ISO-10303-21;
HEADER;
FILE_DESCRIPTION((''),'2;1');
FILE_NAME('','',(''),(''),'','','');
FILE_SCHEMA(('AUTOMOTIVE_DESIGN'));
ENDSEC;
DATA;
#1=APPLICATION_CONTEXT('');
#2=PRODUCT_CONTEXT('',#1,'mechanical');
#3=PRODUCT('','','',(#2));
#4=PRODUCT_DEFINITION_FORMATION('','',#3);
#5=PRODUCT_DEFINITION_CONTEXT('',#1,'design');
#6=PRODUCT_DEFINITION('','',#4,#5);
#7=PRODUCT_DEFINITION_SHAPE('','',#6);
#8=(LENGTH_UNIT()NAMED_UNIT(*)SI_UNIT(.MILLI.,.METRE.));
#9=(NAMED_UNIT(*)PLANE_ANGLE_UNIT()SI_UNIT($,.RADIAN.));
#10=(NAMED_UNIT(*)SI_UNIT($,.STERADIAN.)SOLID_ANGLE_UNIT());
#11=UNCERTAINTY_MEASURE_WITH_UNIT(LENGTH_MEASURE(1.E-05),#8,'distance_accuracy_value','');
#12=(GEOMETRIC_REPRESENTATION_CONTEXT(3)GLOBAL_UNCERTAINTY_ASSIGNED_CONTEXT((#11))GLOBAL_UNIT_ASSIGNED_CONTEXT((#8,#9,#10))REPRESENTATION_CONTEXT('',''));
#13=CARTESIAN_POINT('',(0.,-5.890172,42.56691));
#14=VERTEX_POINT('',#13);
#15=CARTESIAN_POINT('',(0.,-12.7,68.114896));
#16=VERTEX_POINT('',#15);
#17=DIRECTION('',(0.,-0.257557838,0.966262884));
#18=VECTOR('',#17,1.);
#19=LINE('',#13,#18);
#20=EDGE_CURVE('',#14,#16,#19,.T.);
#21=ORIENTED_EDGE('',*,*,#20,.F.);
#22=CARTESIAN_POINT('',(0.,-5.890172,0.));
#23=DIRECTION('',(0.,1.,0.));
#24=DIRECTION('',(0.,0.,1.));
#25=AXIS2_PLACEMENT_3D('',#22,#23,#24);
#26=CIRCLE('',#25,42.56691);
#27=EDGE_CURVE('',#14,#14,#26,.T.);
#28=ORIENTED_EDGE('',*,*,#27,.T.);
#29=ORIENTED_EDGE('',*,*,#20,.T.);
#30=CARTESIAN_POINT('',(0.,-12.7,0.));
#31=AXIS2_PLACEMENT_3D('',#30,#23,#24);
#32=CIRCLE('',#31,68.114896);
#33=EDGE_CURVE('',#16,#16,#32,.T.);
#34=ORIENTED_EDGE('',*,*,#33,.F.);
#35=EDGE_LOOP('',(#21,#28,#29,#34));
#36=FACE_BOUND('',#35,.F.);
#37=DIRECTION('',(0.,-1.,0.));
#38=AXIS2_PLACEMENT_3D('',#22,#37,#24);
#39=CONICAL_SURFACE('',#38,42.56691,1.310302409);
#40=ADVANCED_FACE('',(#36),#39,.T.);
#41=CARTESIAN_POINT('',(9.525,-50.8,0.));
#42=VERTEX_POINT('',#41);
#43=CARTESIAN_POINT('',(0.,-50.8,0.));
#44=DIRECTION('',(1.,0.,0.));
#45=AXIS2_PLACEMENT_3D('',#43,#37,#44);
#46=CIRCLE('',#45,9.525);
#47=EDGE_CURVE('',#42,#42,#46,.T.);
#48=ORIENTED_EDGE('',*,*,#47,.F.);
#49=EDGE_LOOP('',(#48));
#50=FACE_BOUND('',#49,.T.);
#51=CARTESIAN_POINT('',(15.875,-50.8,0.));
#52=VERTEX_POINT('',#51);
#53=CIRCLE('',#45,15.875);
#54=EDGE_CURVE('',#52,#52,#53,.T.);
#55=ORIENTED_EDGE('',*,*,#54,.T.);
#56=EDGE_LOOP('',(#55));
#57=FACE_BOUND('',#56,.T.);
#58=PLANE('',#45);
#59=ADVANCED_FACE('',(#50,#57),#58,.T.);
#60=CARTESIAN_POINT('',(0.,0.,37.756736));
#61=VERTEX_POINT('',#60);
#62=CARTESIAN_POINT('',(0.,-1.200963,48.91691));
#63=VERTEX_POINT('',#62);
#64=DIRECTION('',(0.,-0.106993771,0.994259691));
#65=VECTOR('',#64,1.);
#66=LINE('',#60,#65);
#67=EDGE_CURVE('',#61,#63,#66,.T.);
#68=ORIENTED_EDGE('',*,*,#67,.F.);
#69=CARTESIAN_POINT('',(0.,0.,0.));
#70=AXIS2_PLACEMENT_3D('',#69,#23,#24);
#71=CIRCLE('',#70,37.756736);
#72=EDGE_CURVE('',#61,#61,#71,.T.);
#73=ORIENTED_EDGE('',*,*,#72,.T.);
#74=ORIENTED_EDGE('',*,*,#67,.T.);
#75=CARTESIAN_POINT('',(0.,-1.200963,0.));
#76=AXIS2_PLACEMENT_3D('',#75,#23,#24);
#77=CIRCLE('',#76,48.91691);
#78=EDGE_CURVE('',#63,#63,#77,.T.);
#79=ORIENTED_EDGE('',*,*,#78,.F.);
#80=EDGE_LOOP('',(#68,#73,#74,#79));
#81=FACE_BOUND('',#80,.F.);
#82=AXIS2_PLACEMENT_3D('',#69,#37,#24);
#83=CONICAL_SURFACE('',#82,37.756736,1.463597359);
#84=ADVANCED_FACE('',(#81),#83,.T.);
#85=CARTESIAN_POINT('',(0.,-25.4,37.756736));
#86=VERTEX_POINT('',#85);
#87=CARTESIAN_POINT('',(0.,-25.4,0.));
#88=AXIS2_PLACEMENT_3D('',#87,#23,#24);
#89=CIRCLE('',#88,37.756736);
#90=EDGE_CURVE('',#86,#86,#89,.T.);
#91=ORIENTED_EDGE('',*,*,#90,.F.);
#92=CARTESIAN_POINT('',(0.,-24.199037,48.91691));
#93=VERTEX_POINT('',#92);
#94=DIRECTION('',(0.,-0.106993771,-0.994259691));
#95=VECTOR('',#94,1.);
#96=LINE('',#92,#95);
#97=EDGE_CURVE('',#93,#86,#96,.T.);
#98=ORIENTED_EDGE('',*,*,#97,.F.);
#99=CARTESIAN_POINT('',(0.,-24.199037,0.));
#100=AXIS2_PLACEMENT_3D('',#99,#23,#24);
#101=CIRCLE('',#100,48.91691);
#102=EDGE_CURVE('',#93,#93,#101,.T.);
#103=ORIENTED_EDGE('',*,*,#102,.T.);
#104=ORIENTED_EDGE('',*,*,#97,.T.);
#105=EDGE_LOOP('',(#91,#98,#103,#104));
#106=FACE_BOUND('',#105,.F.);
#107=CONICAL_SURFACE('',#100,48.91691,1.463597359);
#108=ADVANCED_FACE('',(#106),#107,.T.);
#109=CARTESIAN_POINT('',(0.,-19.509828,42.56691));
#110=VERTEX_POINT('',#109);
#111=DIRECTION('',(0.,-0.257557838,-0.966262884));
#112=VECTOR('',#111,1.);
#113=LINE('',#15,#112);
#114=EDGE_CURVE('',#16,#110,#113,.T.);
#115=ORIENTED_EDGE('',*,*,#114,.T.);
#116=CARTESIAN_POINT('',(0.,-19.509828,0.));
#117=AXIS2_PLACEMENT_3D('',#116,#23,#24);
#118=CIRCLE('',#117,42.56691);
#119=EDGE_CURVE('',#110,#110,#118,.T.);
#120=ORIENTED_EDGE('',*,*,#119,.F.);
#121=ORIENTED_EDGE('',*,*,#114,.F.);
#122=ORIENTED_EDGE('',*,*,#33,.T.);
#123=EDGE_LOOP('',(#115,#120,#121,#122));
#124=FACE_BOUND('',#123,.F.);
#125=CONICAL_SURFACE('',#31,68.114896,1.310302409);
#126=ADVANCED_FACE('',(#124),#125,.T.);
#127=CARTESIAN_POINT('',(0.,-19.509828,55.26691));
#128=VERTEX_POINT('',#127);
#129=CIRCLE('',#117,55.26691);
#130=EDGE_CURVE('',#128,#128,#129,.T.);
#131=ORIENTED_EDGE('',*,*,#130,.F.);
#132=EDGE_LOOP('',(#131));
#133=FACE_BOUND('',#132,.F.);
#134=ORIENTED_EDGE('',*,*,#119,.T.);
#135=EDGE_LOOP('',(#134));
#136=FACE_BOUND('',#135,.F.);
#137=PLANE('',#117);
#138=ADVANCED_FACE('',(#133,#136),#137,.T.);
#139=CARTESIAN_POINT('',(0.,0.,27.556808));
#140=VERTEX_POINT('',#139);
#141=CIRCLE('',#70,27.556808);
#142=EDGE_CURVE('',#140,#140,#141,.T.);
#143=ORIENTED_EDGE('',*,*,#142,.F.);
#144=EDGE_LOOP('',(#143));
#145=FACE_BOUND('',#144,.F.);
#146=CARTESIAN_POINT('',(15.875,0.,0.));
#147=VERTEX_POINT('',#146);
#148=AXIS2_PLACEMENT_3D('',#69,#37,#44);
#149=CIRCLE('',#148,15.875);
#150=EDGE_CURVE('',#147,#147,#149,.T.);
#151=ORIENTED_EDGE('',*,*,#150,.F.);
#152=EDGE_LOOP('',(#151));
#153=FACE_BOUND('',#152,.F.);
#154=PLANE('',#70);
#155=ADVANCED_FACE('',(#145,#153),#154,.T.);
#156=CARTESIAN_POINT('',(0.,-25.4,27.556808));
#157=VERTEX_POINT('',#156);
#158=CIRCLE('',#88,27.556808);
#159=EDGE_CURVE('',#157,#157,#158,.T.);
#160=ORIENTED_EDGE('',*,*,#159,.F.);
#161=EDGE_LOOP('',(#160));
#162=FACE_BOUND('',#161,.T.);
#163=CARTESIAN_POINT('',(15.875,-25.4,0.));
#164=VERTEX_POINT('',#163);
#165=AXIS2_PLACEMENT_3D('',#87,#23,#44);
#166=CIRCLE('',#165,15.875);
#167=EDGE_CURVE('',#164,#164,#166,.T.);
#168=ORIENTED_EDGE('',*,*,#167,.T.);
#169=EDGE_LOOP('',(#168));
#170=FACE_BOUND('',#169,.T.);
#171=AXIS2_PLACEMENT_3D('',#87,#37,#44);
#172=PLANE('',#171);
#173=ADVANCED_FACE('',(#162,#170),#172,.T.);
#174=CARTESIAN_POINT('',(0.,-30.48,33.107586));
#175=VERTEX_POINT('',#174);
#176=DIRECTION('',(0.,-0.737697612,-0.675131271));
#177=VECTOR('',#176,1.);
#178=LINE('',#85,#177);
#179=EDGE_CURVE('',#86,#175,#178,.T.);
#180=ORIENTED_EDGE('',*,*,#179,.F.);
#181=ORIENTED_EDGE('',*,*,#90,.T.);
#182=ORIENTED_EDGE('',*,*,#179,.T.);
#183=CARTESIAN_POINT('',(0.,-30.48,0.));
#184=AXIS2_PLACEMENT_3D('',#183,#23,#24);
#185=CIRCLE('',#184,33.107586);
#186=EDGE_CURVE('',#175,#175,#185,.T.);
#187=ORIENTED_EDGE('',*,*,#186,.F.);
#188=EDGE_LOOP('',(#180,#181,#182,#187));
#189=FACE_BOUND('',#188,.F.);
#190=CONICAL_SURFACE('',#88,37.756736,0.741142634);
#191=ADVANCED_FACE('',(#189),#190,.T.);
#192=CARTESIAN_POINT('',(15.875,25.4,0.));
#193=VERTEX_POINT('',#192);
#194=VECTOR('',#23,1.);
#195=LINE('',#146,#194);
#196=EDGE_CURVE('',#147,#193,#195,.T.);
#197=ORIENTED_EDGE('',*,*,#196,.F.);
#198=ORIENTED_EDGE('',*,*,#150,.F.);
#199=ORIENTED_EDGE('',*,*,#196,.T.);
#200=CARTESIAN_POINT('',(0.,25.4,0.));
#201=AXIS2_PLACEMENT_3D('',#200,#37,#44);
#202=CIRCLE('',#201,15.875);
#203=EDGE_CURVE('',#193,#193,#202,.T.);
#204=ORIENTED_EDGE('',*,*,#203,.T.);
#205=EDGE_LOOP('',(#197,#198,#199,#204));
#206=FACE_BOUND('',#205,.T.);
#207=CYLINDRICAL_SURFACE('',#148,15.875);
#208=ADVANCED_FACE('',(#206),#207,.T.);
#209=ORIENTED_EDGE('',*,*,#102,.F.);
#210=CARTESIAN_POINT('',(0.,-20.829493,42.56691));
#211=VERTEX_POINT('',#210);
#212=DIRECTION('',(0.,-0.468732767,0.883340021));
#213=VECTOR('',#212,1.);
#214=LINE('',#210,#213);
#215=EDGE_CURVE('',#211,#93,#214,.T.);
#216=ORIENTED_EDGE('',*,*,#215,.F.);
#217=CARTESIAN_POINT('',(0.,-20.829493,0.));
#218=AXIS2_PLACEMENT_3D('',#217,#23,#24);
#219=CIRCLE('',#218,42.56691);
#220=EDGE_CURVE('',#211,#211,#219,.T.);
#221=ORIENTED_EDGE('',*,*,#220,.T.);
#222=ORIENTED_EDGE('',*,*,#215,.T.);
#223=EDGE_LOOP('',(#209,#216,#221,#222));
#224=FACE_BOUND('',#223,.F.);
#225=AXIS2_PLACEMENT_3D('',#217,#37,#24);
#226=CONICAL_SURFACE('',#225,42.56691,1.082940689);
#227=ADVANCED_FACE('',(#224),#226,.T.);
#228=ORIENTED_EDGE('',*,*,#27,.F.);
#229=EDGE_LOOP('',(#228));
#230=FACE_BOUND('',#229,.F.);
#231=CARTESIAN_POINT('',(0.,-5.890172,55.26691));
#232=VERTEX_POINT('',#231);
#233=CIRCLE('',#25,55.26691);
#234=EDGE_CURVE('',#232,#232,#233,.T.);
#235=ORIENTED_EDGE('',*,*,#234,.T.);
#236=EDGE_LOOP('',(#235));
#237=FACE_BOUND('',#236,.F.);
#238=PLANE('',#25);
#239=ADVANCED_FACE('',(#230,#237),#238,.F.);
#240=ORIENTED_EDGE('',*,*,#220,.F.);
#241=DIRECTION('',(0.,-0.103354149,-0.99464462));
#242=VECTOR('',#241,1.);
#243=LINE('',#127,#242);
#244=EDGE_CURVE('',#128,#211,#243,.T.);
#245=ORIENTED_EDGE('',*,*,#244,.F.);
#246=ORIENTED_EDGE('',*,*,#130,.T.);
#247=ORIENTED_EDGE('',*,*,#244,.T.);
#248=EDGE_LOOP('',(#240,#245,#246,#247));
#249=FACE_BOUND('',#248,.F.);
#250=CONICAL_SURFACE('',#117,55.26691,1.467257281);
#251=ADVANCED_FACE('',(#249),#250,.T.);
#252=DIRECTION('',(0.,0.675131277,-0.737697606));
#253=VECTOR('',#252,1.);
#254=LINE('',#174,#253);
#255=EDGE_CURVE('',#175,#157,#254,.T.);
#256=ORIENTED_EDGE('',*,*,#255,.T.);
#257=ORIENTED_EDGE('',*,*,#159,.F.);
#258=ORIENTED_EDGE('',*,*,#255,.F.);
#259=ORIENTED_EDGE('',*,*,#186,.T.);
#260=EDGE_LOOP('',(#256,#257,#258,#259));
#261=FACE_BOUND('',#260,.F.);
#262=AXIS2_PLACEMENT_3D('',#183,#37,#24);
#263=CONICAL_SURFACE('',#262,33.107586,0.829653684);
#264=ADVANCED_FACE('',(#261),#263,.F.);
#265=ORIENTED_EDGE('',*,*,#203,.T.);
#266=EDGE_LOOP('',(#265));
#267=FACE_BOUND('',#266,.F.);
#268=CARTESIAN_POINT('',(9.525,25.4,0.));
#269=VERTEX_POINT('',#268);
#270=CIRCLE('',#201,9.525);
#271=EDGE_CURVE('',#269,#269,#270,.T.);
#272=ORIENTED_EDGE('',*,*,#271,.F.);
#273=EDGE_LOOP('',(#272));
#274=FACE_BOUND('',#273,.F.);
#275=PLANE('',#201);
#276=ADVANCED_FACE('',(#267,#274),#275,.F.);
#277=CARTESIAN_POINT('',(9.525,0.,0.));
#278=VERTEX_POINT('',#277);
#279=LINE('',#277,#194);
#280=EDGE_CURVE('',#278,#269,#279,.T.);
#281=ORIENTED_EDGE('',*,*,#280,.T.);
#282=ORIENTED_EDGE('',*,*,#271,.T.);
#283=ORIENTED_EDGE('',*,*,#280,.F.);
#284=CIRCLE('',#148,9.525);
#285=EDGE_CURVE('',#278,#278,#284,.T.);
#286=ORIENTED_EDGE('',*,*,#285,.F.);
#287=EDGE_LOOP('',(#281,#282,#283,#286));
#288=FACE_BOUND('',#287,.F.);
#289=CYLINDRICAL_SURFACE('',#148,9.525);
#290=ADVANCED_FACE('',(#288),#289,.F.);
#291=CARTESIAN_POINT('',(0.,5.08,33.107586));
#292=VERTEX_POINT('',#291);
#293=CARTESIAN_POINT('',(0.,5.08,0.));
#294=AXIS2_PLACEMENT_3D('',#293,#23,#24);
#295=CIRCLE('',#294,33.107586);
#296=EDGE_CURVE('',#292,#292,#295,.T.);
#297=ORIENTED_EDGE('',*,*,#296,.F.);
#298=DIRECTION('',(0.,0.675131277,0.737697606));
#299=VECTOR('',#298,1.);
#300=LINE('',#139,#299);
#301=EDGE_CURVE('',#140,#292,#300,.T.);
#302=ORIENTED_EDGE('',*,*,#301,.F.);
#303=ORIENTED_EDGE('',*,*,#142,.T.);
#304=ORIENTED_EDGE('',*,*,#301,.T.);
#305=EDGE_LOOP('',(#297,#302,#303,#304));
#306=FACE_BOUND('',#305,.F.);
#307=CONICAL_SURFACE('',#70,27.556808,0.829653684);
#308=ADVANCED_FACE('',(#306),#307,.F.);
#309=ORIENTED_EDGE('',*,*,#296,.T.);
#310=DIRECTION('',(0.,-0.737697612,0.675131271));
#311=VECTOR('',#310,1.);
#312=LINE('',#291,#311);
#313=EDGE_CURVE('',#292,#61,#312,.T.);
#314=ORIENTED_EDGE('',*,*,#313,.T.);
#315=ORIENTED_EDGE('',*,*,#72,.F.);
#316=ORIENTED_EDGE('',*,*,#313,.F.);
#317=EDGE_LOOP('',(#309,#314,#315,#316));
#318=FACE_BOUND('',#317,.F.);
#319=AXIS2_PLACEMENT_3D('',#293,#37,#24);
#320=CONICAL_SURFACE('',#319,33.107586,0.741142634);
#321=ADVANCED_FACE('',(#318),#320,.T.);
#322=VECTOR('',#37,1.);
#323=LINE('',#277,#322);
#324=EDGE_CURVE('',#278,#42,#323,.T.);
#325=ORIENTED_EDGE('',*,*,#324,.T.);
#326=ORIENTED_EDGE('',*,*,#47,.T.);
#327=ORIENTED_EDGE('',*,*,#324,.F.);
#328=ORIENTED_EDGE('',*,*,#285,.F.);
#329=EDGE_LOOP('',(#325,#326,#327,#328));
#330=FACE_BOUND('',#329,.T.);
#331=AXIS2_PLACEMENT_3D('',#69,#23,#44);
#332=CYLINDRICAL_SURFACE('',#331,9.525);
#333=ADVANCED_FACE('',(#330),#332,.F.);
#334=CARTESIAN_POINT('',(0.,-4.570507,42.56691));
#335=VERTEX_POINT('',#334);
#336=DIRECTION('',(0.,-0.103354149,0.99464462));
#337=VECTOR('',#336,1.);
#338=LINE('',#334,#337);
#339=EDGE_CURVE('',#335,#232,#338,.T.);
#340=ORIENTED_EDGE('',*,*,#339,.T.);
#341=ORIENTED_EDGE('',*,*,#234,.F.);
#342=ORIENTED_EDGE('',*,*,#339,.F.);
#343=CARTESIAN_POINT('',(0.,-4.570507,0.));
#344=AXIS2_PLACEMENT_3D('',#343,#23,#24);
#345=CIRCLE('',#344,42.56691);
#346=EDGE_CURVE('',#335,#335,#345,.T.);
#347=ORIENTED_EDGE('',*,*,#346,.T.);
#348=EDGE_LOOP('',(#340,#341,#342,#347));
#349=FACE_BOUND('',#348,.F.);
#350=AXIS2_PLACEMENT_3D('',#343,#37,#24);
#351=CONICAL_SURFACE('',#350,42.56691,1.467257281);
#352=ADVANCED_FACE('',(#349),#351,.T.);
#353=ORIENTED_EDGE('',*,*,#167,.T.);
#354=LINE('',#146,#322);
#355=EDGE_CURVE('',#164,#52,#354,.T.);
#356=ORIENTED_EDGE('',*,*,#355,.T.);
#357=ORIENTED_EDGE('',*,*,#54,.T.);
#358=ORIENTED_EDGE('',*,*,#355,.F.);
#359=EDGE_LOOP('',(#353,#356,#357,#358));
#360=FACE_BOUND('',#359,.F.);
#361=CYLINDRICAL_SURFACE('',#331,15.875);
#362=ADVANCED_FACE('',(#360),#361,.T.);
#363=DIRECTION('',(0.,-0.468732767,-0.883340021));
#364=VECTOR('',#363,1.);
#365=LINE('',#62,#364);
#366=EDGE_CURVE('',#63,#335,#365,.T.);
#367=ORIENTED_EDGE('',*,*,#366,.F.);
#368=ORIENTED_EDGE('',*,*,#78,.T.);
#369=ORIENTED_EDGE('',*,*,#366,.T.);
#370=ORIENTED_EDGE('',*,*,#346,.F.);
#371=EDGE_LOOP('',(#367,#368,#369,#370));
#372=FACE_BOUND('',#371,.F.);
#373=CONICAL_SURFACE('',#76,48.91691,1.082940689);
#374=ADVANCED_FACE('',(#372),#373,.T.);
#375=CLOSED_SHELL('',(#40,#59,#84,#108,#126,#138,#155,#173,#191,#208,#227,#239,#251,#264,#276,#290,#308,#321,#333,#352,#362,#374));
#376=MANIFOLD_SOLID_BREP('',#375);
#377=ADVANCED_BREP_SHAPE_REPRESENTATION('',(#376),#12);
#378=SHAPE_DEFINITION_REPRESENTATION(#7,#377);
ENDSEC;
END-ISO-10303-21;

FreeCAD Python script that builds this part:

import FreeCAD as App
import Part
import Sketcher
from FreeCAD import Vector
Q = App.Units.Quantity

doc = App.newDocument("Part")
body = doc.addObject("PartDesign::Body", "Body")

sketch1 = body.newObject("Sketcher::SketchObject", "Sketch")
sketch1.AttachmentSupport = (doc.getObject("XZ_Plane"), [""])
sketch1.MapMode = "FlatFace"
sketch1.addGeometry(Part.Circle(Vector(0, 0, 0), Vector(0, 0, 1), 16), False)
sketch1.addGeometry(Part.Circle(Vector(0, 0, 0), Vector(0, 0, 1), 10), False)
sketch1.addConstraint(Sketcher.Constraint("Coincident", 0, 3, -1, 1))
sketch1.addConstraint(Sketcher.Constraint("Coincident", 1, 3, -1, 1))
sketch1.addConstraint(Sketcher.Constraint("Diameter", 0, Q("1.25 in")))
sketch1.addConstraint(Sketcher.Constraint("Diameter", 1, Q("0.75 in")))
pad1 = body.newObject("PartDesign::Pad", "Pad")
pad1.Profile = sketch1
pad1.Length = Q("1 in")

sketch2 = body.newObject("Sketcher::SketchObject", "Sketch001")
sketch2.AttachmentSupport = (doc.getObject("YZ_Plane"), [""])
sketch2.MapMode = "FlatFace"
sketch2.addGeometry(Part.LineSegment(Vector(-25, 16, 0), Vector(0, 16, 0)), False)
sketch2.addGeometry(Part.LineSegment(Vector(0, 16, 0), Vector(0, 28, 0)), False)
sketch2.addGeometry(Part.LineSegment(Vector(0, 28, 0), Vector(5, 33, 0)), False)
sketch2.addGeometry(Part.LineSegment(Vector(5, 33, 0), Vector(0, 38, 0)), False)
sketch2.addGeometry(Part.LineSegment(Vector(0, 38, 0), Vector(-1, 49, 0)), False)
sketch2.addGeometry(Part.LineSegment(Vector(-1, 49, 0), Vector(-5, 43, 0)), False)
sketch2.addGeometry(Part.LineSegment(Vector(-5, 43, 0), Vector(-6, 55, 0)), False)
sketch2.addGeometry(Part.LineSegment(Vector(-6, 55, 0), Vector(-6, 43, 0)), False)
sketch2.addGeometry(Part.LineSegment(Vector(-6, 43, 0), Vector(-13, 68, 0)), False)
sketch2.addGeometry(Part.LineSegment(Vector(-13, 68, 0), Vector(-20, 43, 0)), False)
sketch2.addGeometry(Part.LineSegment(Vector(-20, 43, 0), Vector(-20, 55, 0)), False)
sketch2.addGeometry(Part.LineSegment(Vector(-20, 55, 0), Vector(-21, 43, 0)), False)
sketch2.addGeometry(Part.LineSegment(Vector(-21, 43, 0), Vector(-24, 49, 0)), False)
sketch2.addGeometry(Part.LineSegment(Vector(-24, 49, 0), Vector(-25, 38, 0)), False)
sketch2.addGeometry(Part.LineSegment(Vector(-25, 38, 0), Vector(-30, 33, 0)), False)
sketch2.addGeometry(Part.LineSegment(Vector(-30, 33, 0), Vector(-25, 28, 0)), False)
sketch2.addGeometry(Part.LineSegment(Vector(-25, 28, 0), Vector(-25, 16, 0)), False)
sketch2.addConstraint(Sketcher.Constraint("Coincident", 0, 2, 1, 1))
sketch2.addConstraint(Sketcher.Constraint("Coincident", 1, 2, 2, 1))
sketch2.addConstraint(Sketcher.Constraint("Coincident", 2, 2, 3, 1))
sketch2.addConstraint(Sketcher.Constraint("Coincident", 3, 2, 4, 1))
sketch2.addConstraint(Sketcher.Constraint("Coincident", 4, 2, 5, 1))
sketch2.addConstraint(Sketcher.Constraint("Coincident", 5, 2, 6, 1))
sketch2.addConstraint(Sketcher.Constraint("Coincident", 6, 2, 7, 1))
sketch2.addConstraint(Sketcher.Constraint("Coincident", 7, 2, 8, 1))
sketch2.addConstraint(Sketcher.Constraint("Coincident", 8, 2, 9, 1))
sketch2.addConstraint(Sketcher.Constraint("Coincident", 9, 2, 10, 1))
sketch2.addConstraint(Sketcher.Constraint("Coincident", 10, 2, 11, 1))
sketch2.addConstraint(Sketcher.Constraint("Coincident", 11, 2, 12, 1))
sketch2.addConstraint(Sketcher.Constraint("Coincident", 12, 2, 13, 1))
sketch2.addConstraint(Sketcher.Constraint("Coincident", 13, 2, 14, 1))
sketch2.addConstraint(Sketcher.Constraint("Coincident", 14, 2, 15, 1))
sketch2.addConstraint(Sketcher.Constraint("Coincident", 15, 2, 16, 1))
sketch2.addConstraint(Sketcher.Constraint("Coincident", 16, 2, 0, 1))
sketch2.addConstraint(Sketcher.Constraint("Horizontal", 0))
sketch2.addConstraint(Sketcher.Constraint("Vertical", 1))
sketch2.addConstraint(Sketcher.Constraint("Vertical", 7))
sketch2.addConstraint(Sketcher.Constraint("Vertical", 10))
sketch2.addConstraint(Sketcher.Constraint("Vertical", 16))
sketch2.addConstraint(Sketcher.Constraint("PointOnObject", 0, 2, -2))
sketch2.addConstraint(Sketcher.Constraint("PointOnObject", 3, 2, -2))
sketch2.addConstraint(Sketcher.Constraint("Perpendicular", 2, 3))
sketch2.addConstraint(Sketcher.Constraint("Perpendicular", 14, 15))
sketch2.addConstraint(Sketcher.Constraint("Horizontal", 5, 2, 7, 2))
sketch2.addConstraint(Sketcher.Constraint("Horizontal", 7, 2, 9, 2))
sketch2.addConstraint(Sketcher.Constraint("Horizontal", 6, 2, 10, 2))
sketch2.addConstraint(Sketcher.Constraint("Horizontal", 9, 2, 11, 2))
sketch2.addConstraint(Sketcher.Constraint("Horizontal", 4, 2, 12, 2))
sketch2.addConstraint(Sketcher.Constraint("Horizontal", 3, 2, 13, 2))
sketch2.addConstraint(Sketcher.Constraint("Horizontal", 2, 2, 14, 2))
sketch2.addConstraint(Sketcher.Constraint("Horizontal", 1, 2, 15, 2))
sketch2.addConstraint(Sketcher.Constraint("Vertical", 13, 2, 15, 2))
sketch2.addConstraint(Sketcher.Constraint("Equal", 8, 9))
sketch2.addConstraint(Sketcher.Constraint("Equal", 6, 11))
sketch2.addConstraint(Sketcher.Constraint("Equal", 5, 12))
sketch2.addConstraint(Sketcher.Constraint("Equal", 4, 13))
sketch2.addConstraint(Sketcher.Constraint("DistanceX", 0, 1, 0, 2, Q("1 in")))
sketch2.addConstraint(Sketcher.Constraint("DistanceY", 7, 2, 7, 1, Q("0.5 in")))
sketch2.addConstraint(Sketcher.Constraint("DistanceX", -1, 1, 2, 2, Q("0.2 in")))
sketch2.addConstraint(Sketcher.Constraint("DistanceY", 5, 2, 4, 2, Q("0.25 in")))
sketch2.addConstraint(Sketcher.Constraint("DistanceY", -1, 1, 0, 2, Q("0.625 in")))
sketch2.addConstraint(Sketcher.Constraint("Distance", 3, Q("6.88629 mm")))
sketch2.addConstraint(Sketcher.Constraint("Distance", 6, Q("12.76838 mm")))
sketch2.addConstraint(Sketcher.Constraint("DistanceY", 1, 1, 1, 2, Q("11.681808 mm")))
sketch2.addConstraint(Sketcher.Constraint("DistanceY", -1, 1, 4, 2, Q("48.91691 mm")))
sketch2.addConstraint(Sketcher.Constraint("DistanceX", 6, 2, -1, 1, Q("5.890172 mm")))
sketch2.addConstraint(Sketcher.Constraint("DistanceX", 6, 2, 4, 2, Q("4.689209 mm")))
sketch2.addConstraint(Sketcher.Constraint("DistanceY", 3, 2, 8, 2, Q("30.35816 mm")))
revolution = body.newObject("PartDesign::Revolution", "Revolution")
revolution.Profile = sketch2
revolution.ReferenceAxis = (sketch2, ["H_Axis"])
revolution.Angle = 360

sketch3 = body.newObject("Sketcher::SketchObject", "Sketch002")
sketch3.AttachmentSupport = (doc.getObject("XZ_Plane"), [""])
sketch3.MapMode = "FlatFace"
sketch3.addGeometry(Part.Circle(Vector(0, 0, 0), Vector(0, 0, 1), 16), False)
sketch3.addGeometry(Part.Circle(Vector(0, 0, 0), Vector(0, 0, 1), 10), False)
sketch3.addConstraint(Sketcher.Constraint("Coincident", 0, 3, -1, 1))
sketch3.addConstraint(Sketcher.Constraint("Coincident", 1, 3, -1, 1))
sketch3.addConstraint(Sketcher.Constraint("Diameter", 0, Q("1.25 in")))
sketch3.addConstraint(Sketcher.Constraint("Diameter", 1, Q("0.75 in")))
pad2 = body.newObject("PartDesign::Pad", "Pad001")
pad2.Profile = sketch3
pad2.Length = Q("2 in")

sketch4 = body.newObject("Sketcher::SketchObject", "Sketch003")
sketch4.AttachmentSupport = (doc.getObject("XZ_Plane"), [""])
sketch4.MapMode = "FlatFace"
sketch4.addGeometry(Part.Circle(Vector(0, 0, 0), Vector(0, 0, 1), 16), False)
sketch4.addGeometry(Part.Circle(Vector(0, 0, 0), Vector(0, 0, 1), 10), False)
sketch4.addConstraint(Sketcher.Constraint("Coincident", 0, 3, -1, 1))
sketch4.addConstraint(Sketcher.Constraint("Coincident", 1, 3, -1, 1))
sketch4.addConstraint(Sketcher.Constraint("Diameter", 0, Q("1.25 in")))
sketch4.addConstraint(Sketcher.Constraint("Diameter", 1, Q("0.75 in")))
pad3 = body.newObject("PartDesign::Pad", "Pad002")
pad3.Profile = sketch4
pad3.Length = Q("1 in")
pad3.Reversed = True

doc.recompute()
